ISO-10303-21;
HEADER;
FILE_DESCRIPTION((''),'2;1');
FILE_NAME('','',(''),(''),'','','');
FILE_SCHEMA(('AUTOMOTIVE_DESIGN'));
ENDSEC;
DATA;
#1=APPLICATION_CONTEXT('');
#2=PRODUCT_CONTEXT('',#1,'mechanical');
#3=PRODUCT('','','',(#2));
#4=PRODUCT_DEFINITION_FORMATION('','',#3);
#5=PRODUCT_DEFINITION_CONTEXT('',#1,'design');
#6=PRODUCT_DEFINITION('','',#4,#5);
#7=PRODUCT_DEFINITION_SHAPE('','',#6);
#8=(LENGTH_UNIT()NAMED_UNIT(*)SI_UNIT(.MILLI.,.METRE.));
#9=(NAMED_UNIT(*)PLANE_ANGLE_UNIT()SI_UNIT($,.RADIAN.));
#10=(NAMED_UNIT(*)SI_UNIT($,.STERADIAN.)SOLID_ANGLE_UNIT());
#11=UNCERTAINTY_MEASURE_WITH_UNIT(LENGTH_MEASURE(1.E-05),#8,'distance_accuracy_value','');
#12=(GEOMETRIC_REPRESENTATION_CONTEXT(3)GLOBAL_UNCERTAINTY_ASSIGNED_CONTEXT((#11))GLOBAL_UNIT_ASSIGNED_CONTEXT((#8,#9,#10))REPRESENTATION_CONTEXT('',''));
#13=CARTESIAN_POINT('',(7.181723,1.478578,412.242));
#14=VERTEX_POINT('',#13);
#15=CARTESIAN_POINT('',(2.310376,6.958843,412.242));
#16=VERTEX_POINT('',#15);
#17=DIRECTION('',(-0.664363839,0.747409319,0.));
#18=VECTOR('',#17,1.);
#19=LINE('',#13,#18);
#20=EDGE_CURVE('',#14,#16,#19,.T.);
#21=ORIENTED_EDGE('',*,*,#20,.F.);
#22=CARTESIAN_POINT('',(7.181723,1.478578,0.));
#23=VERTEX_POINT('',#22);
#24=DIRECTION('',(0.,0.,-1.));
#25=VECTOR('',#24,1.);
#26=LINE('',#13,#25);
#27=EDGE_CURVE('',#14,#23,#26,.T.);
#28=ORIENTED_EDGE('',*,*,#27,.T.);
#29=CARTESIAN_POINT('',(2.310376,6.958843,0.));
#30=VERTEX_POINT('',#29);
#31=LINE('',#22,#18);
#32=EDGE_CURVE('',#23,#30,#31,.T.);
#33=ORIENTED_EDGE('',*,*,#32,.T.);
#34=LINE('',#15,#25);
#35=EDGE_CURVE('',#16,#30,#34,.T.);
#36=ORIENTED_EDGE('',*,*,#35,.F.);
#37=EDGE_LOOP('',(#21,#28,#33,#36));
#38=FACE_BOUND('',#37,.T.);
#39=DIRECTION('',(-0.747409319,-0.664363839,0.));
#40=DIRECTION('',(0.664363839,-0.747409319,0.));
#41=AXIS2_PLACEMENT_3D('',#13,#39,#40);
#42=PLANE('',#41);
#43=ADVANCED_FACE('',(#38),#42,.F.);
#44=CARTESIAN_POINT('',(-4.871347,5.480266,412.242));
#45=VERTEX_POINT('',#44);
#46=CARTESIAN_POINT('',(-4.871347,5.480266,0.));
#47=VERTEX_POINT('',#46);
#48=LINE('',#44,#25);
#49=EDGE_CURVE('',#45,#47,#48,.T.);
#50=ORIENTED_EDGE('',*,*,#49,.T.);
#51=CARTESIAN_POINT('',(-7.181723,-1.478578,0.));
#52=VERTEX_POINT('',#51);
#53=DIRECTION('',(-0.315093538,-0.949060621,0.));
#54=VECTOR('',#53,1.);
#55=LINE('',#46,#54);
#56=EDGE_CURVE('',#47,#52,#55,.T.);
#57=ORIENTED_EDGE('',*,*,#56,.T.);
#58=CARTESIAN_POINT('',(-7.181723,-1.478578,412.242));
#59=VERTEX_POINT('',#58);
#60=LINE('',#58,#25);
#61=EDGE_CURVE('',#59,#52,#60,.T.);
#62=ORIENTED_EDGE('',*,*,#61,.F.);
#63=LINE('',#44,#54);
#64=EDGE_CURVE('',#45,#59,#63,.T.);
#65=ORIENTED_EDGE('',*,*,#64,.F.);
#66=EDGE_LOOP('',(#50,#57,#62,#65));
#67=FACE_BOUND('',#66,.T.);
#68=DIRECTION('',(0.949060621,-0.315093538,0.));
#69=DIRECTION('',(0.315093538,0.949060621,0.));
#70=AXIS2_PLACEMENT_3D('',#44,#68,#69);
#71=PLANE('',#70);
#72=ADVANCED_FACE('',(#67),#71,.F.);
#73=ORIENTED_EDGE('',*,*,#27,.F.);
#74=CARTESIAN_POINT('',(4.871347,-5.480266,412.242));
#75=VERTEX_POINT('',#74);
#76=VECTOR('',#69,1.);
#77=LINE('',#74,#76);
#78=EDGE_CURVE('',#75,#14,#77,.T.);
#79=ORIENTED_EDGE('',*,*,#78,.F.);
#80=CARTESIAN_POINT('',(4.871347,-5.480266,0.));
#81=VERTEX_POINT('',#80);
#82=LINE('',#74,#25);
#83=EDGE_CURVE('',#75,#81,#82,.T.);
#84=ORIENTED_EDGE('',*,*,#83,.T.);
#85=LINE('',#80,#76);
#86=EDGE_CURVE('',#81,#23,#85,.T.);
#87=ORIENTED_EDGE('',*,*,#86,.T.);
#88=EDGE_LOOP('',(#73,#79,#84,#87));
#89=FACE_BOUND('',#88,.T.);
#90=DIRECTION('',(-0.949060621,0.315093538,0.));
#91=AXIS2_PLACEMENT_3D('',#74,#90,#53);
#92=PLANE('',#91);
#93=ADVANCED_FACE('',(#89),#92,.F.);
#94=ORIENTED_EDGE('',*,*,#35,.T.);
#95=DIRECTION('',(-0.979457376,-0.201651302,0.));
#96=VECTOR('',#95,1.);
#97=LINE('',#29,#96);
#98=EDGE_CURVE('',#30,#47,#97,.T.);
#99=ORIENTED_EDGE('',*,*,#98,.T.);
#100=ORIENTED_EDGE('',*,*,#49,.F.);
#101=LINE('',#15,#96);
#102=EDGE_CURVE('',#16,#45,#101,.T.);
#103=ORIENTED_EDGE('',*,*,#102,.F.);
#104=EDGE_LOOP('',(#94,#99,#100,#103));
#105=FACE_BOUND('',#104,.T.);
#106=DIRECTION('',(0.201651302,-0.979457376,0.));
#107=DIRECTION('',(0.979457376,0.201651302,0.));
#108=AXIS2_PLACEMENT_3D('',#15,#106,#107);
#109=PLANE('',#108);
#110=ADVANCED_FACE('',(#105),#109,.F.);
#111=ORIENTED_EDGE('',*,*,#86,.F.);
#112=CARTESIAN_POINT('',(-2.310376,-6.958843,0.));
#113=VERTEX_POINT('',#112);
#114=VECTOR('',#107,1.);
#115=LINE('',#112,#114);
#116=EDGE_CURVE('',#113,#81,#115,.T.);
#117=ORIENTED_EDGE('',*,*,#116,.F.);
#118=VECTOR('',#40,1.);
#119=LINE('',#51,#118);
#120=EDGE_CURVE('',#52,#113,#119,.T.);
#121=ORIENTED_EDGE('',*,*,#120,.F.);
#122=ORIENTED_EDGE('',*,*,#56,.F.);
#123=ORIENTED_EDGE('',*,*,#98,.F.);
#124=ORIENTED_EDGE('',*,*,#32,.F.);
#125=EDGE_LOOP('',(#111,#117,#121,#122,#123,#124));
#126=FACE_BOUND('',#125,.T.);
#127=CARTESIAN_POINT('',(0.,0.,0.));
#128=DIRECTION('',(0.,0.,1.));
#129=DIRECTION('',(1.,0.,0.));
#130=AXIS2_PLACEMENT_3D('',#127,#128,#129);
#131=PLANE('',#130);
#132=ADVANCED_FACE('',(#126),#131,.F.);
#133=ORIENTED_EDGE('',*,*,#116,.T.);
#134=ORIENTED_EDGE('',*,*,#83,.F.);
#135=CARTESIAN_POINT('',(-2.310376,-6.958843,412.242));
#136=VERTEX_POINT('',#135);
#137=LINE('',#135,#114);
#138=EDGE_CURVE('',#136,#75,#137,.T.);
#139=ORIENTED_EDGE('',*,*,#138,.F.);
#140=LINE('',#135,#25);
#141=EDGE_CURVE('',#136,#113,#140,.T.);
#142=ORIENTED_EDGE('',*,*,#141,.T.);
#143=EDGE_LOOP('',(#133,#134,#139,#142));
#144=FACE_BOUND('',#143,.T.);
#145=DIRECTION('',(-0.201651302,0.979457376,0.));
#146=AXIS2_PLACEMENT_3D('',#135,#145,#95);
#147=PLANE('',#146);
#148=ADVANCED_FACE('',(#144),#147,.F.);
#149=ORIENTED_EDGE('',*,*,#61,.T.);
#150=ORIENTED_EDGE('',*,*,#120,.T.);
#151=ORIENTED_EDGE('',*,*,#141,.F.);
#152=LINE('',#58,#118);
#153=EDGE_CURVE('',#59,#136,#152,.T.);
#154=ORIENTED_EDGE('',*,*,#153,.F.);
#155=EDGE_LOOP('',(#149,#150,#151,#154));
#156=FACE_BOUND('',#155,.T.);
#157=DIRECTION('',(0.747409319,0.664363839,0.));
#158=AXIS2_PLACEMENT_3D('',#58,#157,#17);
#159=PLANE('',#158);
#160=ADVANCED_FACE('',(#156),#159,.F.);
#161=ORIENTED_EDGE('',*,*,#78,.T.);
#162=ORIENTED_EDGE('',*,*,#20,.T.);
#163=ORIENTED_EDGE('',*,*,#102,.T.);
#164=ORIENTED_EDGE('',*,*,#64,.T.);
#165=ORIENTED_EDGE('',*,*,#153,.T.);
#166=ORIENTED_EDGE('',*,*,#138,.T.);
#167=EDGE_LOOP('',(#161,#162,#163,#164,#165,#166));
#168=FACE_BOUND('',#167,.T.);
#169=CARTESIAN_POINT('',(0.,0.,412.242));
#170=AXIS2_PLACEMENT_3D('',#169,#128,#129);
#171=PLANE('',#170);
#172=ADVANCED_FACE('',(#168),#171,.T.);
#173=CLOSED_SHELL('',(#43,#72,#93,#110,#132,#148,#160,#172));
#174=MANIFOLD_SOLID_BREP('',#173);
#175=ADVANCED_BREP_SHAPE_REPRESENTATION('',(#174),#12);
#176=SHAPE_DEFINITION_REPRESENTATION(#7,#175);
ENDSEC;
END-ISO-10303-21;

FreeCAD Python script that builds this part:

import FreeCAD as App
import Part
import Sketcher

V = App.Vector
Q = App.Units.Quantity

doc = App.newDocument("Part")
params = doc.addObject("Spreadsheet::Sheet", "Params")
for row, (alias, value) in enumerate([
    ("pad1_length", "16.23 in"),
], start=1):
    params.set(f"A{row}", alias)
    params.set(f"B{row}", "=" + value)
    params.setAlias(f"B{row}", alias)

body = doc.addObject("PartDesign::Body", "Body")

# Sketch on XY plane
sketch1 = body.newObject("Sketcher::SketchObject", "Sketch")
sketch1.AttachmentSupport = (doc.getObject("XY_Plane"), [""])
sketch1.MapMode = "FlatFace"
sketch1.addGeometry([
    Part.LineSegment(V(5, -5, 0), V(7, 1, 0)),  # 0
    Part.LineSegment(V(7, 1, 0), V(2, 7, 0)),  # 1
    Part.LineSegment(V(2, 7, 0), V(-5, 5, 0)),  # 2
    Part.LineSegment(V(-5, 5, 0), V(-7, -1, 0)),  # 3
    Part.LineSegment(V(-7, -1, 0), V(-2, -7, 0)),  # 4
    Part.LineSegment(V(-2, -7, 0), V(5, -5, 0)),  # 5
], False)
sketch1.addConstraint([
    Sketcher.Constraint("Coincident", 0, 2, 1, 1),
    Sketcher.Constraint("Coincident", 1, 2, 2, 1),
    Sketcher.Constraint("Coincident", 2, 2, 3, 1),
    Sketcher.Constraint("Coincident", 3, 2, 4, 1),
    Sketcher.Constraint("Coincident", 4, 2, 5, 1),
    Sketcher.Constraint("Coincident", 5, 2, 0, 1),
    Sketcher.Constraint("Symmetric", 0, 2, 3, 2, -1, 1),
    Sketcher.Constraint("Symmetric", 1, 2, 4, 2, -1, 1),
    Sketcher.Constraint("Symmetric", 2, 2, 5, 2, -1, 1),
    Sketcher.Constraint("Equal", 0, 1),
    Sketcher.Constraint("Equal", 1, 2),
    Sketcher.Constraint("DistanceX", 3, 2, 1, 2, Q("9.492098 mm")),
    Sketcher.Constraint("Distance", 0, Q("7.332348 mm")),
    Sketcher.Constraint("DistanceX", 2, 2, 0, 2, Q("12.05307 mm")),
    Sketcher.Constraint("DistanceY", 3, 2, 1, 2, Q("8.437421 mm")),
])
pad1 = body.newObject("PartDesign::Pad", "Pad")
pad1.Profile = sketch1
pad1.setExpression("Length", "Params.pad1_length")

doc.recompute()
